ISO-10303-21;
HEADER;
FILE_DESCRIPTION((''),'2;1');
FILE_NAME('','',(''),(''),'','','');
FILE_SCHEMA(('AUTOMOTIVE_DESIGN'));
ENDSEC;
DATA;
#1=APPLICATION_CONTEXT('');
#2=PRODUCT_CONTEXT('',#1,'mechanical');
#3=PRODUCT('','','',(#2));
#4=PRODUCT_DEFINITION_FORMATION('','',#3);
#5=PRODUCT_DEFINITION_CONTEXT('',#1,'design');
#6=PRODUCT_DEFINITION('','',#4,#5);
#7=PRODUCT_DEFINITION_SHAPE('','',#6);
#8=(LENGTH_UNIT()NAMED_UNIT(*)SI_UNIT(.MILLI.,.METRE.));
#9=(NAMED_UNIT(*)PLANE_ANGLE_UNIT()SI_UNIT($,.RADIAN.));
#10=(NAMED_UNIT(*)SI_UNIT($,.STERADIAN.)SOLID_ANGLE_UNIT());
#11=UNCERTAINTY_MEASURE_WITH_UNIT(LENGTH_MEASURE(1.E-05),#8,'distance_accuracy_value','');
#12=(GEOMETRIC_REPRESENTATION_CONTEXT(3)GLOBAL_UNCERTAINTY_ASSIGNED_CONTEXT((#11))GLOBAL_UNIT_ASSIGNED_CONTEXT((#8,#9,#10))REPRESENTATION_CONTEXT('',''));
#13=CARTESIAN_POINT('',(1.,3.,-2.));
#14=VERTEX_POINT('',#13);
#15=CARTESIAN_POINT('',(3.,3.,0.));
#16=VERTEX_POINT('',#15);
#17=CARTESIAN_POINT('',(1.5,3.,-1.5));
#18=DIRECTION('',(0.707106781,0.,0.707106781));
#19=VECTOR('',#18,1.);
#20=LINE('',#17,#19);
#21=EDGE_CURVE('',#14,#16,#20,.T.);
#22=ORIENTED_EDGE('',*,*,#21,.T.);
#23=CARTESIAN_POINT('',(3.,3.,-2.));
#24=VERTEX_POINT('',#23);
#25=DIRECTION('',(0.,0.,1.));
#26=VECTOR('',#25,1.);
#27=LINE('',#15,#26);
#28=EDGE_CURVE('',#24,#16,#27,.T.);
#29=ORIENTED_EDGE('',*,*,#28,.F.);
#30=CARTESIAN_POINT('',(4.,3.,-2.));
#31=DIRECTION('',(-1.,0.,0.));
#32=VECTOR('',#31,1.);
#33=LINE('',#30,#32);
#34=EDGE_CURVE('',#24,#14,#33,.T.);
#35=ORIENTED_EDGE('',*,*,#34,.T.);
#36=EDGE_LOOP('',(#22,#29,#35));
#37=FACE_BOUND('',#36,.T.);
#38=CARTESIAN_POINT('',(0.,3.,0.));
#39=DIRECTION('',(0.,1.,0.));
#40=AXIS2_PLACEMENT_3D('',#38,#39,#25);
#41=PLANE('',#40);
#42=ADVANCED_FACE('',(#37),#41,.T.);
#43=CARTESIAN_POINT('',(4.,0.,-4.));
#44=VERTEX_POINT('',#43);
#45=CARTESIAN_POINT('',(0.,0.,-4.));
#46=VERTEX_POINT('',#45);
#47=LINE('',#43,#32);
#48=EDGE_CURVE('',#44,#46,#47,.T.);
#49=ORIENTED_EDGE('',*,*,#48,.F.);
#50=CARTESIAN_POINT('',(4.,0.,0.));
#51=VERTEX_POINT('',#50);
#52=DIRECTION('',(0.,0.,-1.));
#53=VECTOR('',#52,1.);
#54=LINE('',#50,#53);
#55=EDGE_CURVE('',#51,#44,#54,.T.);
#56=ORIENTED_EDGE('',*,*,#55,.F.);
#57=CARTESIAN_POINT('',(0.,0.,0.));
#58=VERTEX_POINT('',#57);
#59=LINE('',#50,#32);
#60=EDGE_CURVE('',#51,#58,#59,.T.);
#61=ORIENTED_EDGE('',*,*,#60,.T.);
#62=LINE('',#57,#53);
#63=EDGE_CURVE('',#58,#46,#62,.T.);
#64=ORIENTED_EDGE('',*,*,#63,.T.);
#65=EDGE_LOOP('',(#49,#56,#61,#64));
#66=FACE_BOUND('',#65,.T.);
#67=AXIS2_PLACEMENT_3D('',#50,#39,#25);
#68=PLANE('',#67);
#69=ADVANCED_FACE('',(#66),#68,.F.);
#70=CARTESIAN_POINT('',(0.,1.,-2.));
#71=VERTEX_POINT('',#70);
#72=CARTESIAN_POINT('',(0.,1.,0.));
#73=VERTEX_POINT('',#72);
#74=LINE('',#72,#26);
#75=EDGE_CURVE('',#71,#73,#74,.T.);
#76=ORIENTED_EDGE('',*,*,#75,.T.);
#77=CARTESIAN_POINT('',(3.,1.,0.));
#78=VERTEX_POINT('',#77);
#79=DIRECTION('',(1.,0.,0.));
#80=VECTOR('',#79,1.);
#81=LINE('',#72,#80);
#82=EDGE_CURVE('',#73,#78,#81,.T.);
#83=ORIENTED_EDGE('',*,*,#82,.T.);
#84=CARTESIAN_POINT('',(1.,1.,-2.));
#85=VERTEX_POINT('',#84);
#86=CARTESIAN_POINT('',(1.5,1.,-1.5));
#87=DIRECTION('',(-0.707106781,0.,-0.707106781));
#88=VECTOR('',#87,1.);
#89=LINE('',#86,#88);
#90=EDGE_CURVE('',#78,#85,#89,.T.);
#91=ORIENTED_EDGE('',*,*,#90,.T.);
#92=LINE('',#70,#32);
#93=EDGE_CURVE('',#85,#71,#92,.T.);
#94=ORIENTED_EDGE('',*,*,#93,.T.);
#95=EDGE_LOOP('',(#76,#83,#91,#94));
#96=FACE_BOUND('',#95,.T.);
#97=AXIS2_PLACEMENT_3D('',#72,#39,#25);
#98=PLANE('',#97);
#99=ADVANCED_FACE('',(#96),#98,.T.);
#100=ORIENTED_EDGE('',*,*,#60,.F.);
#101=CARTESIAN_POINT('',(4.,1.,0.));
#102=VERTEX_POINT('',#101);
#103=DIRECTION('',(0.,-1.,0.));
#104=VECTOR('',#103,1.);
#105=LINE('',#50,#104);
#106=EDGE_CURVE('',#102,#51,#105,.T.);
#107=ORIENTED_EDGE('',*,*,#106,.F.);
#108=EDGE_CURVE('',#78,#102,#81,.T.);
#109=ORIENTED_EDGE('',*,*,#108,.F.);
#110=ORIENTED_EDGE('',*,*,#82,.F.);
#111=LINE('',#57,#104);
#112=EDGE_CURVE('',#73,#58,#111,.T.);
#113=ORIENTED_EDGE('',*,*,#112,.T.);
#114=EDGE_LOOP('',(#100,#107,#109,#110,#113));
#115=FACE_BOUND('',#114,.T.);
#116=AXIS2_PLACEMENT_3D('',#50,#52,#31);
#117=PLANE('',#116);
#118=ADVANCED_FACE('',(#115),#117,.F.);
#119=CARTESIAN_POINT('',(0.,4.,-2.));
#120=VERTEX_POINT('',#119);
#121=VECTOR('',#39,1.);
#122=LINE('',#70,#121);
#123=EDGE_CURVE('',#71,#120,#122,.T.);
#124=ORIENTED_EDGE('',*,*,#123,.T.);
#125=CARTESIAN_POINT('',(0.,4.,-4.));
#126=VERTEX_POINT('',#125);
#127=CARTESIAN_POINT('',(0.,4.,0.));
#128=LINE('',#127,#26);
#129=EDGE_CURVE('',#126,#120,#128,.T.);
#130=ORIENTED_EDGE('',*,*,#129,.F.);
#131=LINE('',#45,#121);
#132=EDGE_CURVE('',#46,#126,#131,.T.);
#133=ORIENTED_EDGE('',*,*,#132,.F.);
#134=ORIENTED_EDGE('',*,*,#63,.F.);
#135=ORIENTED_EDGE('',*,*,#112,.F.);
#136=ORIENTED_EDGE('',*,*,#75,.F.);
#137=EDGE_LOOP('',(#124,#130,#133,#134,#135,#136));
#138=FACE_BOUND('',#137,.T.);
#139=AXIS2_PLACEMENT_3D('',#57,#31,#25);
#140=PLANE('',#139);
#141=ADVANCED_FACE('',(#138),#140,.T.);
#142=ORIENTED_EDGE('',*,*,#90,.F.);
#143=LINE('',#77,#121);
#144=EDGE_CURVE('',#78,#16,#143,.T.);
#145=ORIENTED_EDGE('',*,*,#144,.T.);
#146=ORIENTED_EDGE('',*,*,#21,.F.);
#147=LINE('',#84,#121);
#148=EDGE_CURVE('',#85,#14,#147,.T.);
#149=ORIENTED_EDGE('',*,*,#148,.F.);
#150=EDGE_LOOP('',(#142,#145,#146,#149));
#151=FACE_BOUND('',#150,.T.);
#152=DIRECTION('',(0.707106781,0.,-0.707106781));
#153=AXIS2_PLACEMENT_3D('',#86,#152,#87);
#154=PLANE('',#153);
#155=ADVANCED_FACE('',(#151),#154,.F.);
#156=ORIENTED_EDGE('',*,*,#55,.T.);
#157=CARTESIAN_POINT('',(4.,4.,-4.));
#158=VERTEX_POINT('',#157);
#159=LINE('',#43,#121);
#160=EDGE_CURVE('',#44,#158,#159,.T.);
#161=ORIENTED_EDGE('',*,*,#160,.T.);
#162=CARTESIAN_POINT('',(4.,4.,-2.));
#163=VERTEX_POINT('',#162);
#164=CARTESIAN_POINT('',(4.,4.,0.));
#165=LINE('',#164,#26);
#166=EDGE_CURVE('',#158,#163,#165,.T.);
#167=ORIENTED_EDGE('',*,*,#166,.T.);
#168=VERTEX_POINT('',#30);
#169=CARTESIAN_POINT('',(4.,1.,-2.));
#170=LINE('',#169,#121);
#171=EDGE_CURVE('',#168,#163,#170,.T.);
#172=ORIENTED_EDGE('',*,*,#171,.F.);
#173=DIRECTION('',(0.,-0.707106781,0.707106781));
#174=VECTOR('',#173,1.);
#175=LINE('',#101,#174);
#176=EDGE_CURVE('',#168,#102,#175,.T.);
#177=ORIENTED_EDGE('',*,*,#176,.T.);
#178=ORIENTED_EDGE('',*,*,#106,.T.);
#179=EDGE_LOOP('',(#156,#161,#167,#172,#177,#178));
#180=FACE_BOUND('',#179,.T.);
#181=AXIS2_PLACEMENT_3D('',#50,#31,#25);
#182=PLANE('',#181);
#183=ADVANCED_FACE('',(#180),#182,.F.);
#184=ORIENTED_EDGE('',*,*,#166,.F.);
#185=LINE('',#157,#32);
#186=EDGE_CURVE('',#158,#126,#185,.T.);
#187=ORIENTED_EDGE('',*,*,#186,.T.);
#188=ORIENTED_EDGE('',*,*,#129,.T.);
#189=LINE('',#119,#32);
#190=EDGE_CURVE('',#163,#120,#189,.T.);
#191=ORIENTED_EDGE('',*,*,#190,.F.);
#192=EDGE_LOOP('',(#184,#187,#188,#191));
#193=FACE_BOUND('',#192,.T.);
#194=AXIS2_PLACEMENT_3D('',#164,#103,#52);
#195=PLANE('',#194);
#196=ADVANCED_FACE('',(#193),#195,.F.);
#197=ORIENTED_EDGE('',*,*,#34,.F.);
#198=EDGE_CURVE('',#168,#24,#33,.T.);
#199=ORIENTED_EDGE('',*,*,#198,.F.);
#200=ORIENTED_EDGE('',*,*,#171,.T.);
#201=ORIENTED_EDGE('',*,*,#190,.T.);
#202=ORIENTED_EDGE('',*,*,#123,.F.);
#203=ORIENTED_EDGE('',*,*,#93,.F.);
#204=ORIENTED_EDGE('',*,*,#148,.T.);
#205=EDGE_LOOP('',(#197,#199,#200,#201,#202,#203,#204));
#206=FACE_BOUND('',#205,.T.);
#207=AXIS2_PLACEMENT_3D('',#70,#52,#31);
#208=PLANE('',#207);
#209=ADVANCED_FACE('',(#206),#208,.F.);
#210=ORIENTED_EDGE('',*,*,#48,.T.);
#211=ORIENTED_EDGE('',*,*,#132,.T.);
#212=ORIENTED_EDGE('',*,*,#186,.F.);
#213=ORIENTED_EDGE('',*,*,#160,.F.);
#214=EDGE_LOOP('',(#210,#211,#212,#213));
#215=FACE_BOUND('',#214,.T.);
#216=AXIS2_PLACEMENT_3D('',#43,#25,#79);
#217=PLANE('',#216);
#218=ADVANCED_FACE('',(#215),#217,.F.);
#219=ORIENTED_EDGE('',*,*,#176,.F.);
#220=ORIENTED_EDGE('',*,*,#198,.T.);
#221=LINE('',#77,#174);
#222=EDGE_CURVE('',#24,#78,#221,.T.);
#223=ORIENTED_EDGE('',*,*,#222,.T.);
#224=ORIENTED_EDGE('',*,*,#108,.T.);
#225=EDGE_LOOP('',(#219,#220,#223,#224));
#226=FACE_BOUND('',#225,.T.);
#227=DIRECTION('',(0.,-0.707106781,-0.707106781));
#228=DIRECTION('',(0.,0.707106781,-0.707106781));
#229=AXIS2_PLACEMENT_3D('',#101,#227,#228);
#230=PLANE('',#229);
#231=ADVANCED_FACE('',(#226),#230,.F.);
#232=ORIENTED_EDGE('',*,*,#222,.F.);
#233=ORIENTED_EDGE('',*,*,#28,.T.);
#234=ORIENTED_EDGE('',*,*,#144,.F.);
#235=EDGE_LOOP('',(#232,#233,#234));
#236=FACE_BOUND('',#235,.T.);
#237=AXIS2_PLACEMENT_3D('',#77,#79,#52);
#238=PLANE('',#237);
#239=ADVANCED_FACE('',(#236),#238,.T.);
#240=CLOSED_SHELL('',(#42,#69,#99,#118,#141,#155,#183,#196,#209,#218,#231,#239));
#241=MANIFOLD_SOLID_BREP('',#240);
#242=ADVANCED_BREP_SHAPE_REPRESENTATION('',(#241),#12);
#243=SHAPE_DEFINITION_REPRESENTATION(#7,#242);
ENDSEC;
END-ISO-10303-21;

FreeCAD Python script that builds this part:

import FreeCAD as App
import Part
import Sketcher

V = App.Vector

doc = App.newDocument("Part")
params = doc.addObject("Spreadsheet::Sheet", "Params")
for row, (alias, value) in enumerate([
    ("sketch1_width", "4 mm"),
    ("pad1_length", "4 mm"),
    ("sketch2_width", "3 mm"),
    ("sketch2_width2", "1 mm"),
    ("sketch2_height", "2 mm"),
    ("pocket1_length", "3 mm"),
    ("sketch3_width", "3 mm"),
    ("sketch3_height", "2 mm"),
    ("pocket2_length", "1 mm"),
    ("sketch4_width", "2 mm"),
    ("pad2_length", "1 mm"),
], start=1):
    params.set(f"A{row}", alias)
    params.set(f"B{row}", "=" + value)
    params.setAlias(f"B{row}", alias)

body = doc.addObject("PartDesign::Body", "Body")

# Sketch on YZ plane
sketch1 = body.newObject("Sketcher::SketchObject", "Sketch")
sketch1.AttachmentSupport = (doc.getObject("YZ_Plane"), [""])
sketch1.MapMode = "FlatFace"
sketch1.addGeometry([
    Part.LineSegment(V(4, 0, 0), V(0, 0, 0)),
    Part.LineSegment(V(0, 0, 0), V(0, -4, 0)),
    Part.LineSegment(V(0, -4, 0), V(4, -4, 0)),
    Part.LineSegment(V(4, -4, 0), V(4, 0, 0)),
], False)
sketch1.addConstraint([
    Sketcher.Constraint("Coincident", 0, 2, 1, 1),
    Sketcher.Constraint("Coincident", 1, 2, 2, 1),
    Sketcher.Constraint("Coincident", 2, 2, 3, 1),
    Sketcher.Constraint("Coincident", 3, 2, 0, 1),
    Sketcher.Constraint("Horizontal", 0),
    Sketcher.Constraint("Vertical", 1),
    Sketcher.Constraint("Horizontal", 2),
    Sketcher.Constraint("Vertical", 3),
    Sketcher.Constraint("Coincident", 0, 2, -1, 1),
    Sketcher.Constraint("Equal", 2, 1),
    Sketcher.Constraint("DistanceX", 0, 2, 0, 1, 4.0),
])
sketch1.setExpression("Constraints[10]", "Params.sketch1_width")
pad1 = body.newObject("PartDesign::Pad", "Pad")
pad1.Profile = sketch1
pad1.setExpression("Length", "Params.pad1_length")

# Sketch on XZ plane
sketch2 = body.newObject("Sketcher::SketchObject", "Sketch001")
sketch2.AttachmentSupport = (doc.getObject("XZ_Plane"), [""])
sketch2.MapMode = "FlatFace"
sketch2.AttachmentOffset = App.Placement(V(0, 0, -4), App.Rotation())
sketch2.addGeometry([
    Part.LineSegment(V(0, 0, 0), V(3, 0, 0)),  # 0
    Part.LineSegment(V(3, 0, 0), V(1, -2, 0)),  # 1
    Part.LineSegment(V(1, -2, 0), V(0, -2, 0)),  # 2
    Part.LineSegment(V(0, -2, 0), V(0, 0, 0)),  # 3
    Part.LineSegment(V(3, -2, 0), V(3, 0, 0)),  # 4
    Part.LineSegment(V(3, 0, 0), V(4, 0, 0)),  # 5
    Part.LineSegment(V(4, 0, 0), V(4, -2, 0)),  # 6
    Part.LineSegment(V(4, -2, 0), V(3, -2, 0)),  # 7
], False)
sketch2.addConstraint([
    Sketcher.Constraint("Coincident", 0, 2, 1, 1),
    Sketcher.Constraint("Coincident", 1, 2, 2, 1),
    Sketcher.Constraint("Coincident", 2, 2, 3, 1),
    Sketcher.Constraint("Coincident", 3, 2, 0, 1),
    Sketcher.Constraint("Coincident", 4, 2, 5, 1),
    Sketcher.Constraint("Coincident", 5, 2, 6, 1),
    Sketcher.Constraint("Coincident", 6, 2, 7, 1),
    Sketcher.Constraint("Coincident", 7, 2, 4, 1),
    Sketcher.Constraint("Horizontal", 0),
    Sketcher.Constraint("Horizontal", 2),
    Sketcher.Constraint("Vertical", 3),
    Sketcher.Constraint("Vertical", 4),
    Sketcher.Constraint("Horizontal", 5),
    Sketcher.Constraint("Vertical", 6),
    Sketcher.Constraint("Horizontal", 7),
    Sketcher.Constraint("Coincident", 3, 2, -1, 1),
    Sketcher.Constraint("Coincident", 4, 2, 0, 2),
    Sketcher.Constraint("Horizontal", 2, 2, 6, 2),
    Sketcher.Constraint("Equal", 2, 5),
    Sketcher.Constraint("DistanceX", 0, 1, 0, 2, 3.0),
    Sketcher.Constraint("DistanceX", 2, 2, 2, 1, 1.0),
    Sketcher.Constraint("DistanceY", 3, 1, 3, 2, 2.0),
])
sketch2.setExpression("Constraints[19]", "Params.sketch2_width")
sketch2.setExpression("Constraints[20]", "Params.sketch2_width2")
sketch2.setExpression("Constraints[21]", "Params.sketch2_height")
pocket1 = body.newObject("PartDesign::Pocket", "Pocket")
pocket1.Profile = sketch2
pocket1.setExpression("Length", "Params.pocket1_length")
pocket1.Reversed = True

# Sketch on XZ plane
sketch3 = body.newObject("Sketcher::SketchObject", "Sketch002")
sketch3.AttachmentSupport = (doc.getObject("XZ_Plane"), [""])
sketch3.MapMode = "FlatFace"
sketch3.AttachmentOffset = App.Placement(V(0, 0, -4), App.Rotation())
sketch3.addGeometry([
    Part.LineSegment(V(1, -2, 0), V(1, 0, 0)),
    Part.LineSegment(V(1, 0, 0), V(4, 0, 0)),
    Part.LineSegment(V(4, 0, 0), V(4, -2, 0)),
    Part.LineSegment(V(4, -2, 0), V(1, -2, 0)),
], False)
sketch3.addConstraint([
    Sketcher.Constraint("Coincident", 0, 2, 1, 1),
    Sketcher.Constraint("Coincident", 1, 2, 2, 1),
    Sketcher.Constraint("Coincident", 2, 2, 3, 1),
    Sketcher.Constraint("Coincident", 3, 2, 0, 1),
    Sketcher.Constraint("Vertical", 0),
    Sketcher.Constraint("Horizontal", 1),
    Sketcher.Constraint("Vertical", 2),
    Sketcher.Constraint("Horizontal", 3),
    Sketcher.Constraint("PointOnObject", 0, 2, -1),
    Sketcher.Constraint("DistanceX", 1, 1, 1, 2, 3.0),
    Sketcher.Constraint("DistanceY", 0, 1, 0, 2, 2.0),
    Sketcher.Constraint("DistanceX", -1, 1, 0, 2, 1.0),
])
sketch3.setExpression("Constraints[9]", "Params.sketch3_width")
sketch3.setExpression("Constraints[10]", "Params.sketch3_height")
pocket2 = body.newObject("PartDesign::Pocket", "Pocket001")
pocket2.Profile = sketch3
pocket2.setExpression("Length", "Params.pocket2_length")
pocket2.Reversed = True

# Sketch on YZ plane
sketch4 = body.newObject("Sketcher::SketchObject", "Sketch003")
sketch4.AttachmentSupport = (doc.getObject("YZ_Plane"), [""])
sketch4.MapMode = "FlatFace"
sketch4.AttachmentOffset = App.Placement(V(0, 0, 3), App.Rotation())
sketch4.addGeometry([
    Part.LineSegment(V(3, -2, 0), V(1, 0, 0)),
    Part.LineSegment(V(1, 0, 0), V(1, -2, 0)),
    Part.LineSegment(V(1, -2, 0), V(3, -2, 0)),
], False)
sketch4.addConstraint([
    Sketcher.Constraint("Coincident", 0, 2, 1, 1),
    Sketcher.Constraint("Coincident", 1, 2, 2, 1),
    Sketcher.Constraint("Coincident", 2, 2, 0, 1),
    Sketcher.Constraint("Vertical", 1),
    Sketcher.Constraint("Horizontal", 2),
    Sketcher.Constraint("PointOnObject", 0, 2, -1),
    Sketcher.Constraint("Equal", 2, 1),
    Sketcher.Constraint("DistanceX", 2, 1, 2, 2, 2.0),
    Sketcher.Constraint("DistanceX", -1, 1, 0, 2, 1.0),
])
sketch4.setExpression("Constraints[7]", "Params.sketch4_width")
pad2 = body.newObject("PartDesign::Pad", "Pad001")
pad2.Profile = sketch4
pad2.setExpression("Length", "Params.pad2_length")

doc.recompute()
